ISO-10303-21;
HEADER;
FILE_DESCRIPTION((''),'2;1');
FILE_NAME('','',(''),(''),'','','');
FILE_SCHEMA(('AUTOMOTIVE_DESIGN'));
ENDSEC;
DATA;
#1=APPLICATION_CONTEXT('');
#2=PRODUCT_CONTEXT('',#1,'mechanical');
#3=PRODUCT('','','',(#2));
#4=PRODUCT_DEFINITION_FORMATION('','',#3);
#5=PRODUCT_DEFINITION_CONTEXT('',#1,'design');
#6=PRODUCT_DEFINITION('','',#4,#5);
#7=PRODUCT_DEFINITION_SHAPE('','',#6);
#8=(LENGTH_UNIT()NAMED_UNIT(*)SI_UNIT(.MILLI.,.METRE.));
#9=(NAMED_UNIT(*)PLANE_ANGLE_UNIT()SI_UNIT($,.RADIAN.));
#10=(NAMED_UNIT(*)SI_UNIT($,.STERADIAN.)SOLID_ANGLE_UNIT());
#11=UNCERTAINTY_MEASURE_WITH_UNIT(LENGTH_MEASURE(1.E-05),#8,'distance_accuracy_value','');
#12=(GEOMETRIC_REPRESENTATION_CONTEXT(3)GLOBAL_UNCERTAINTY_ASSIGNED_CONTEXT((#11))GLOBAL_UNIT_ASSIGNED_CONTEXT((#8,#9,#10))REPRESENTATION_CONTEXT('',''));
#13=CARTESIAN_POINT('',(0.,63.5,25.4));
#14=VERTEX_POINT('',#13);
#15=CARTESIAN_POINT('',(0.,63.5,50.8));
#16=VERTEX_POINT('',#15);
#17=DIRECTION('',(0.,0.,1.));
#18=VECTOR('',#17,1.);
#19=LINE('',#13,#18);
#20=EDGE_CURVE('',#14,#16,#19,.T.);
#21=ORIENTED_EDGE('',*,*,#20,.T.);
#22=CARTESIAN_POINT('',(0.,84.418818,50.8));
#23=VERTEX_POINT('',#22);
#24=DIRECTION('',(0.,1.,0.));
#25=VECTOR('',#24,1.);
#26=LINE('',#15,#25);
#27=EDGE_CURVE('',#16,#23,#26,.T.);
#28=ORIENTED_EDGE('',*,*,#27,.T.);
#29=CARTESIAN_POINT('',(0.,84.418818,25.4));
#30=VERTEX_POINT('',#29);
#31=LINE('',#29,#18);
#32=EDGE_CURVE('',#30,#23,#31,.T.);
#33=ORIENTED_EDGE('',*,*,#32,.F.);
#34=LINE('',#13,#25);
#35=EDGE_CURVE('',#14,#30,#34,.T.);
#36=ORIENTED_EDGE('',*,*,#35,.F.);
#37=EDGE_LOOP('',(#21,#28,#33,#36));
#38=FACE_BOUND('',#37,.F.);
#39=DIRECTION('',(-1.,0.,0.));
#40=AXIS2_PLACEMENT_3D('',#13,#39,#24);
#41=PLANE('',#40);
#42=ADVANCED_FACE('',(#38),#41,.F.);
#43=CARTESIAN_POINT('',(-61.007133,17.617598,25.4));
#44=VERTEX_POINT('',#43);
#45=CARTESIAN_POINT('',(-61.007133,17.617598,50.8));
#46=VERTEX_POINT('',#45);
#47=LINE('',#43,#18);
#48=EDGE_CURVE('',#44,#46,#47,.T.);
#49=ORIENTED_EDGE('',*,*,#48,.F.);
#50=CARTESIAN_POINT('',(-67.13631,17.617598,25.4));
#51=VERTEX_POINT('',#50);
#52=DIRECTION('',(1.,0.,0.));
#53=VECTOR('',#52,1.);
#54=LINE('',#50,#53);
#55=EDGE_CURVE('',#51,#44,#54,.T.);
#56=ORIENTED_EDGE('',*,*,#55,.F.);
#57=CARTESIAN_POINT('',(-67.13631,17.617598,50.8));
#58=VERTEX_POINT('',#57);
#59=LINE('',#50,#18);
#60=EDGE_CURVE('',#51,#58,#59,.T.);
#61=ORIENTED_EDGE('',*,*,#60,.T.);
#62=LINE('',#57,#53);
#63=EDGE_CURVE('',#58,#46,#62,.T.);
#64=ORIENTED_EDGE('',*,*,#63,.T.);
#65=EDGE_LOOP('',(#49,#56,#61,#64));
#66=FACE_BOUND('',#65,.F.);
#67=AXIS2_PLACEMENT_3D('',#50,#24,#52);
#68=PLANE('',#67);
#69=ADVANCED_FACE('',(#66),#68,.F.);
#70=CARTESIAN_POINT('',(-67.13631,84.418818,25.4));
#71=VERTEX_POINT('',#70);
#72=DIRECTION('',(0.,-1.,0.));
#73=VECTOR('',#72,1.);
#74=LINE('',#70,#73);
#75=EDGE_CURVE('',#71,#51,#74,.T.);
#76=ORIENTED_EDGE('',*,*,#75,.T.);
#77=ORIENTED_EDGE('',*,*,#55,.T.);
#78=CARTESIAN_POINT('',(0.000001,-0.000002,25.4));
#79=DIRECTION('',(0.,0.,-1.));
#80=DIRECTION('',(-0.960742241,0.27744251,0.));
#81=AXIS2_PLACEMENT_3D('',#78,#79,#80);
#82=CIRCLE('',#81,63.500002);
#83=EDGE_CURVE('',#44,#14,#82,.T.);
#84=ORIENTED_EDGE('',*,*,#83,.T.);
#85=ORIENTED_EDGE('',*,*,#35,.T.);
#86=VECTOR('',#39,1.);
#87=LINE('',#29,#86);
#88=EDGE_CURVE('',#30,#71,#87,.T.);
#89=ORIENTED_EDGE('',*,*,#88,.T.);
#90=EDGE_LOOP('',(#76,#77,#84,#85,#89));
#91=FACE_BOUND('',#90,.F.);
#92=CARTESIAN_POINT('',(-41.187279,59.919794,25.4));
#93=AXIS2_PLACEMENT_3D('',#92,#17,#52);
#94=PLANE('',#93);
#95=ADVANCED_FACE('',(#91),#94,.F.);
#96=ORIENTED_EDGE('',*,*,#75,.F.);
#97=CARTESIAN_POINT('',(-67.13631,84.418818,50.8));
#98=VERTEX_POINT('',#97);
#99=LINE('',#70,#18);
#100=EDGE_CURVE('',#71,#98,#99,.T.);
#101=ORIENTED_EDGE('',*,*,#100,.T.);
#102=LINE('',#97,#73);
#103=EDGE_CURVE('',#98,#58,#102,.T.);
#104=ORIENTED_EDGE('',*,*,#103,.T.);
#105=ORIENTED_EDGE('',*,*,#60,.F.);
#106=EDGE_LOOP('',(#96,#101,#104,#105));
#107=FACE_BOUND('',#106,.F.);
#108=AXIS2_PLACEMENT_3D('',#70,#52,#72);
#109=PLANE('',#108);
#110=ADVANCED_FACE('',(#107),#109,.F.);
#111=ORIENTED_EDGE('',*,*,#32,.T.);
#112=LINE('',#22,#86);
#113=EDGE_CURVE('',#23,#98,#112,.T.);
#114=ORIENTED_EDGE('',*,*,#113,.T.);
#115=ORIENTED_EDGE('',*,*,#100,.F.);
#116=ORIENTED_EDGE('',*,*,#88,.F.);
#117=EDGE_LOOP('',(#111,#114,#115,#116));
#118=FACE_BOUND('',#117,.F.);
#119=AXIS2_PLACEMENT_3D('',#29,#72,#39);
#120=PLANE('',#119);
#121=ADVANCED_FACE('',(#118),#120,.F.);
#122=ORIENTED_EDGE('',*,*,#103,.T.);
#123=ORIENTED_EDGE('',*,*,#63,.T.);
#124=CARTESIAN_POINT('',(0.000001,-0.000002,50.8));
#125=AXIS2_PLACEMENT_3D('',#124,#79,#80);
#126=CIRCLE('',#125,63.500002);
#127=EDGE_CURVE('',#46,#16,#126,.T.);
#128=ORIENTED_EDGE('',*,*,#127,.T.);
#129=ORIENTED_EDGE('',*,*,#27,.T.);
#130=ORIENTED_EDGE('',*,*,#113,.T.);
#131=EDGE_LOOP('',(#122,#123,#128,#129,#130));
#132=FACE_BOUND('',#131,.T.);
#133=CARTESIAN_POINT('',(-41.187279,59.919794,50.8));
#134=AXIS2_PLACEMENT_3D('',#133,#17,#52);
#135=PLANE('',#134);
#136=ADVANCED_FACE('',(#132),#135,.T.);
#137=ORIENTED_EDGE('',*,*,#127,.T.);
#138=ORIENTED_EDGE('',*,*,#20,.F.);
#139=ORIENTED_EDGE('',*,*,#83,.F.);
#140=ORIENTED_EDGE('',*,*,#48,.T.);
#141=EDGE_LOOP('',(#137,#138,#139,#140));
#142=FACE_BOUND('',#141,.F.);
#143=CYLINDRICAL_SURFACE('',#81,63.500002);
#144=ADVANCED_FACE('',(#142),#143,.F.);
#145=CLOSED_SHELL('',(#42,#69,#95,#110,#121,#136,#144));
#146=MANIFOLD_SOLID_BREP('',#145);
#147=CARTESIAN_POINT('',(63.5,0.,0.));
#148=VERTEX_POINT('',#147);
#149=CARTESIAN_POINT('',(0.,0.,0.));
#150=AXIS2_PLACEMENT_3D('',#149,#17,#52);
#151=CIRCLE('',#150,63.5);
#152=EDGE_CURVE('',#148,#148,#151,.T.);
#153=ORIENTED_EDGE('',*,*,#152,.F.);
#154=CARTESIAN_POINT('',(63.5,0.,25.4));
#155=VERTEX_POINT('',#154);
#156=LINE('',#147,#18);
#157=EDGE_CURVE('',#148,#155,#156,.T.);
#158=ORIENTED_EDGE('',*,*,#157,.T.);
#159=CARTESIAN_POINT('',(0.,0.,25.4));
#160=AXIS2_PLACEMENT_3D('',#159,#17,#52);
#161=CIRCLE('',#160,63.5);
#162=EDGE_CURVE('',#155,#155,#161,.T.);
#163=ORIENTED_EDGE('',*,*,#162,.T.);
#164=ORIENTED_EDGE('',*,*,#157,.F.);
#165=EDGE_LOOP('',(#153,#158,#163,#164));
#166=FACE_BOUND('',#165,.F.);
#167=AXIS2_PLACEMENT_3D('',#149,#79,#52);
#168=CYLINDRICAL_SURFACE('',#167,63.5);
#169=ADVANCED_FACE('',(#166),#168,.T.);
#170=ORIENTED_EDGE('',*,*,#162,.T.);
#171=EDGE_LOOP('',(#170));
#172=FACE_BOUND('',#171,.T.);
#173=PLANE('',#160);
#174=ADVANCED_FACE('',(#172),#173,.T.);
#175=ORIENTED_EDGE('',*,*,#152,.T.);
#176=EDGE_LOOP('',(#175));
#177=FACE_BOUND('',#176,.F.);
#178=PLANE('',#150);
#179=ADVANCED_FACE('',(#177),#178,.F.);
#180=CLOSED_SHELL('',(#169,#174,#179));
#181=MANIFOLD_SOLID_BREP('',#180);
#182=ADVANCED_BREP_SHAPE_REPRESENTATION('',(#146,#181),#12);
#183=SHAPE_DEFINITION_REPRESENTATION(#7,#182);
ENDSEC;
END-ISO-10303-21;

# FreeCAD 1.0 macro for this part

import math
import FreeCAD as App
import Part
import Sketcher
Q = App.Units.Quantity

doc = App.newDocument("Part")
body = doc.addObject("PartDesign::Body", "Body")

# Sketch on XY plane
sketch1 = body.newObject("Sketcher::SketchObject", "Sketch")
sketch1.AttachmentSupport = (doc.getObject("XY_Plane"), [""])
sketch1.MapMode = "FlatFace"
sketch1.addGeometry(Part.Circle(App.Vector(0, 0, 0), App.Vector(0, 0, 1), 64), False)
sketch1.addConstraint([
    Sketcher.Constraint("Coincident", 0, 3, -1, 1),
    Sketcher.Constraint("Diameter", 0, Q("5 in")),
])
pad1 = body.newObject("PartDesign::Pad", "Pad")
pad1.Profile = sketch1
pad1.Length = Q("1 in")
body2 = doc.addObject("PartDesign::Body", "Body001")

# Sketch on XY plane
sketch2 = body2.newObject("Sketcher::SketchObject", "Sketch001")
sketch2.AttachmentSupport = (doc.getObject("XY_Plane001"), [""])
sketch2.MapMode = "FlatFace"
sketch2.AttachmentOffset = App.Placement(App.Vector(0, 0, 1 * 25.4), App.Rotation())
sketch2.addGeometry([
    Part.LineSegment(App.Vector(0, 84, 0), App.Vector(-67, 84, 0)),  # 0
    Part.LineSegment(App.Vector(-67, 84, 0), App.Vector(-67, 18, 0)),  # 1
    Part.LineSegment(App.Vector(-67, 18, 0), App.Vector(-61, 18, 0)),  # 2
    Part.ArcOfCircle(Part.Circle(App.Vector(0, 0, 0), App.Vector(0, 0, 1), 64), math.radians(90), math.radians(164)),  # 3
    Part.LineSegment(App.Vector(0, 64, 0), App.Vector(0, 84, 0)),  # 4
], False)
sketch2.addConstraint([
    Sketcher.Constraint("Coincident", 0, 2, 1, 1),
    Sketcher.Constraint("Coincident", 1, 2, 2, 1),
    Sketcher.Constraint("Coincident", 2, 2, 3, 2),
    Sketcher.Constraint("Coincident", 3, 1, 4, 1),
    Sketcher.Constraint("Coincident", 4, 2, 0, 1),
    Sketcher.Constraint("Horizontal", 0),
    Sketcher.Constraint("Vertical", 1),
    Sketcher.Constraint("Horizontal", 2),
    Sketcher.Constraint("Vertical", 4),
    Sketcher.Constraint("Coincident", 3, 3, -1, 1),
    Sketcher.Constraint("PointOnObject", 3, 1, -2),
    Sketcher.Constraint("Radius", 3, Q("2.5000001 in")),
    Sketcher.Constraint("DistanceX", 0, 2, 0, 1, 67.13631),
    Sketcher.Constraint("DistanceY", 1, 2, 1, 1, 66.80122),
    Sketcher.Constraint("DistanceY", 4, 1, 4, 2, 20.918818),
])
pad2 = body2.newObject("PartDesign::Pad", "Pad001")
pad2.Profile = sketch2
pad2.Length = Q("1 in")

doc.recompute()
